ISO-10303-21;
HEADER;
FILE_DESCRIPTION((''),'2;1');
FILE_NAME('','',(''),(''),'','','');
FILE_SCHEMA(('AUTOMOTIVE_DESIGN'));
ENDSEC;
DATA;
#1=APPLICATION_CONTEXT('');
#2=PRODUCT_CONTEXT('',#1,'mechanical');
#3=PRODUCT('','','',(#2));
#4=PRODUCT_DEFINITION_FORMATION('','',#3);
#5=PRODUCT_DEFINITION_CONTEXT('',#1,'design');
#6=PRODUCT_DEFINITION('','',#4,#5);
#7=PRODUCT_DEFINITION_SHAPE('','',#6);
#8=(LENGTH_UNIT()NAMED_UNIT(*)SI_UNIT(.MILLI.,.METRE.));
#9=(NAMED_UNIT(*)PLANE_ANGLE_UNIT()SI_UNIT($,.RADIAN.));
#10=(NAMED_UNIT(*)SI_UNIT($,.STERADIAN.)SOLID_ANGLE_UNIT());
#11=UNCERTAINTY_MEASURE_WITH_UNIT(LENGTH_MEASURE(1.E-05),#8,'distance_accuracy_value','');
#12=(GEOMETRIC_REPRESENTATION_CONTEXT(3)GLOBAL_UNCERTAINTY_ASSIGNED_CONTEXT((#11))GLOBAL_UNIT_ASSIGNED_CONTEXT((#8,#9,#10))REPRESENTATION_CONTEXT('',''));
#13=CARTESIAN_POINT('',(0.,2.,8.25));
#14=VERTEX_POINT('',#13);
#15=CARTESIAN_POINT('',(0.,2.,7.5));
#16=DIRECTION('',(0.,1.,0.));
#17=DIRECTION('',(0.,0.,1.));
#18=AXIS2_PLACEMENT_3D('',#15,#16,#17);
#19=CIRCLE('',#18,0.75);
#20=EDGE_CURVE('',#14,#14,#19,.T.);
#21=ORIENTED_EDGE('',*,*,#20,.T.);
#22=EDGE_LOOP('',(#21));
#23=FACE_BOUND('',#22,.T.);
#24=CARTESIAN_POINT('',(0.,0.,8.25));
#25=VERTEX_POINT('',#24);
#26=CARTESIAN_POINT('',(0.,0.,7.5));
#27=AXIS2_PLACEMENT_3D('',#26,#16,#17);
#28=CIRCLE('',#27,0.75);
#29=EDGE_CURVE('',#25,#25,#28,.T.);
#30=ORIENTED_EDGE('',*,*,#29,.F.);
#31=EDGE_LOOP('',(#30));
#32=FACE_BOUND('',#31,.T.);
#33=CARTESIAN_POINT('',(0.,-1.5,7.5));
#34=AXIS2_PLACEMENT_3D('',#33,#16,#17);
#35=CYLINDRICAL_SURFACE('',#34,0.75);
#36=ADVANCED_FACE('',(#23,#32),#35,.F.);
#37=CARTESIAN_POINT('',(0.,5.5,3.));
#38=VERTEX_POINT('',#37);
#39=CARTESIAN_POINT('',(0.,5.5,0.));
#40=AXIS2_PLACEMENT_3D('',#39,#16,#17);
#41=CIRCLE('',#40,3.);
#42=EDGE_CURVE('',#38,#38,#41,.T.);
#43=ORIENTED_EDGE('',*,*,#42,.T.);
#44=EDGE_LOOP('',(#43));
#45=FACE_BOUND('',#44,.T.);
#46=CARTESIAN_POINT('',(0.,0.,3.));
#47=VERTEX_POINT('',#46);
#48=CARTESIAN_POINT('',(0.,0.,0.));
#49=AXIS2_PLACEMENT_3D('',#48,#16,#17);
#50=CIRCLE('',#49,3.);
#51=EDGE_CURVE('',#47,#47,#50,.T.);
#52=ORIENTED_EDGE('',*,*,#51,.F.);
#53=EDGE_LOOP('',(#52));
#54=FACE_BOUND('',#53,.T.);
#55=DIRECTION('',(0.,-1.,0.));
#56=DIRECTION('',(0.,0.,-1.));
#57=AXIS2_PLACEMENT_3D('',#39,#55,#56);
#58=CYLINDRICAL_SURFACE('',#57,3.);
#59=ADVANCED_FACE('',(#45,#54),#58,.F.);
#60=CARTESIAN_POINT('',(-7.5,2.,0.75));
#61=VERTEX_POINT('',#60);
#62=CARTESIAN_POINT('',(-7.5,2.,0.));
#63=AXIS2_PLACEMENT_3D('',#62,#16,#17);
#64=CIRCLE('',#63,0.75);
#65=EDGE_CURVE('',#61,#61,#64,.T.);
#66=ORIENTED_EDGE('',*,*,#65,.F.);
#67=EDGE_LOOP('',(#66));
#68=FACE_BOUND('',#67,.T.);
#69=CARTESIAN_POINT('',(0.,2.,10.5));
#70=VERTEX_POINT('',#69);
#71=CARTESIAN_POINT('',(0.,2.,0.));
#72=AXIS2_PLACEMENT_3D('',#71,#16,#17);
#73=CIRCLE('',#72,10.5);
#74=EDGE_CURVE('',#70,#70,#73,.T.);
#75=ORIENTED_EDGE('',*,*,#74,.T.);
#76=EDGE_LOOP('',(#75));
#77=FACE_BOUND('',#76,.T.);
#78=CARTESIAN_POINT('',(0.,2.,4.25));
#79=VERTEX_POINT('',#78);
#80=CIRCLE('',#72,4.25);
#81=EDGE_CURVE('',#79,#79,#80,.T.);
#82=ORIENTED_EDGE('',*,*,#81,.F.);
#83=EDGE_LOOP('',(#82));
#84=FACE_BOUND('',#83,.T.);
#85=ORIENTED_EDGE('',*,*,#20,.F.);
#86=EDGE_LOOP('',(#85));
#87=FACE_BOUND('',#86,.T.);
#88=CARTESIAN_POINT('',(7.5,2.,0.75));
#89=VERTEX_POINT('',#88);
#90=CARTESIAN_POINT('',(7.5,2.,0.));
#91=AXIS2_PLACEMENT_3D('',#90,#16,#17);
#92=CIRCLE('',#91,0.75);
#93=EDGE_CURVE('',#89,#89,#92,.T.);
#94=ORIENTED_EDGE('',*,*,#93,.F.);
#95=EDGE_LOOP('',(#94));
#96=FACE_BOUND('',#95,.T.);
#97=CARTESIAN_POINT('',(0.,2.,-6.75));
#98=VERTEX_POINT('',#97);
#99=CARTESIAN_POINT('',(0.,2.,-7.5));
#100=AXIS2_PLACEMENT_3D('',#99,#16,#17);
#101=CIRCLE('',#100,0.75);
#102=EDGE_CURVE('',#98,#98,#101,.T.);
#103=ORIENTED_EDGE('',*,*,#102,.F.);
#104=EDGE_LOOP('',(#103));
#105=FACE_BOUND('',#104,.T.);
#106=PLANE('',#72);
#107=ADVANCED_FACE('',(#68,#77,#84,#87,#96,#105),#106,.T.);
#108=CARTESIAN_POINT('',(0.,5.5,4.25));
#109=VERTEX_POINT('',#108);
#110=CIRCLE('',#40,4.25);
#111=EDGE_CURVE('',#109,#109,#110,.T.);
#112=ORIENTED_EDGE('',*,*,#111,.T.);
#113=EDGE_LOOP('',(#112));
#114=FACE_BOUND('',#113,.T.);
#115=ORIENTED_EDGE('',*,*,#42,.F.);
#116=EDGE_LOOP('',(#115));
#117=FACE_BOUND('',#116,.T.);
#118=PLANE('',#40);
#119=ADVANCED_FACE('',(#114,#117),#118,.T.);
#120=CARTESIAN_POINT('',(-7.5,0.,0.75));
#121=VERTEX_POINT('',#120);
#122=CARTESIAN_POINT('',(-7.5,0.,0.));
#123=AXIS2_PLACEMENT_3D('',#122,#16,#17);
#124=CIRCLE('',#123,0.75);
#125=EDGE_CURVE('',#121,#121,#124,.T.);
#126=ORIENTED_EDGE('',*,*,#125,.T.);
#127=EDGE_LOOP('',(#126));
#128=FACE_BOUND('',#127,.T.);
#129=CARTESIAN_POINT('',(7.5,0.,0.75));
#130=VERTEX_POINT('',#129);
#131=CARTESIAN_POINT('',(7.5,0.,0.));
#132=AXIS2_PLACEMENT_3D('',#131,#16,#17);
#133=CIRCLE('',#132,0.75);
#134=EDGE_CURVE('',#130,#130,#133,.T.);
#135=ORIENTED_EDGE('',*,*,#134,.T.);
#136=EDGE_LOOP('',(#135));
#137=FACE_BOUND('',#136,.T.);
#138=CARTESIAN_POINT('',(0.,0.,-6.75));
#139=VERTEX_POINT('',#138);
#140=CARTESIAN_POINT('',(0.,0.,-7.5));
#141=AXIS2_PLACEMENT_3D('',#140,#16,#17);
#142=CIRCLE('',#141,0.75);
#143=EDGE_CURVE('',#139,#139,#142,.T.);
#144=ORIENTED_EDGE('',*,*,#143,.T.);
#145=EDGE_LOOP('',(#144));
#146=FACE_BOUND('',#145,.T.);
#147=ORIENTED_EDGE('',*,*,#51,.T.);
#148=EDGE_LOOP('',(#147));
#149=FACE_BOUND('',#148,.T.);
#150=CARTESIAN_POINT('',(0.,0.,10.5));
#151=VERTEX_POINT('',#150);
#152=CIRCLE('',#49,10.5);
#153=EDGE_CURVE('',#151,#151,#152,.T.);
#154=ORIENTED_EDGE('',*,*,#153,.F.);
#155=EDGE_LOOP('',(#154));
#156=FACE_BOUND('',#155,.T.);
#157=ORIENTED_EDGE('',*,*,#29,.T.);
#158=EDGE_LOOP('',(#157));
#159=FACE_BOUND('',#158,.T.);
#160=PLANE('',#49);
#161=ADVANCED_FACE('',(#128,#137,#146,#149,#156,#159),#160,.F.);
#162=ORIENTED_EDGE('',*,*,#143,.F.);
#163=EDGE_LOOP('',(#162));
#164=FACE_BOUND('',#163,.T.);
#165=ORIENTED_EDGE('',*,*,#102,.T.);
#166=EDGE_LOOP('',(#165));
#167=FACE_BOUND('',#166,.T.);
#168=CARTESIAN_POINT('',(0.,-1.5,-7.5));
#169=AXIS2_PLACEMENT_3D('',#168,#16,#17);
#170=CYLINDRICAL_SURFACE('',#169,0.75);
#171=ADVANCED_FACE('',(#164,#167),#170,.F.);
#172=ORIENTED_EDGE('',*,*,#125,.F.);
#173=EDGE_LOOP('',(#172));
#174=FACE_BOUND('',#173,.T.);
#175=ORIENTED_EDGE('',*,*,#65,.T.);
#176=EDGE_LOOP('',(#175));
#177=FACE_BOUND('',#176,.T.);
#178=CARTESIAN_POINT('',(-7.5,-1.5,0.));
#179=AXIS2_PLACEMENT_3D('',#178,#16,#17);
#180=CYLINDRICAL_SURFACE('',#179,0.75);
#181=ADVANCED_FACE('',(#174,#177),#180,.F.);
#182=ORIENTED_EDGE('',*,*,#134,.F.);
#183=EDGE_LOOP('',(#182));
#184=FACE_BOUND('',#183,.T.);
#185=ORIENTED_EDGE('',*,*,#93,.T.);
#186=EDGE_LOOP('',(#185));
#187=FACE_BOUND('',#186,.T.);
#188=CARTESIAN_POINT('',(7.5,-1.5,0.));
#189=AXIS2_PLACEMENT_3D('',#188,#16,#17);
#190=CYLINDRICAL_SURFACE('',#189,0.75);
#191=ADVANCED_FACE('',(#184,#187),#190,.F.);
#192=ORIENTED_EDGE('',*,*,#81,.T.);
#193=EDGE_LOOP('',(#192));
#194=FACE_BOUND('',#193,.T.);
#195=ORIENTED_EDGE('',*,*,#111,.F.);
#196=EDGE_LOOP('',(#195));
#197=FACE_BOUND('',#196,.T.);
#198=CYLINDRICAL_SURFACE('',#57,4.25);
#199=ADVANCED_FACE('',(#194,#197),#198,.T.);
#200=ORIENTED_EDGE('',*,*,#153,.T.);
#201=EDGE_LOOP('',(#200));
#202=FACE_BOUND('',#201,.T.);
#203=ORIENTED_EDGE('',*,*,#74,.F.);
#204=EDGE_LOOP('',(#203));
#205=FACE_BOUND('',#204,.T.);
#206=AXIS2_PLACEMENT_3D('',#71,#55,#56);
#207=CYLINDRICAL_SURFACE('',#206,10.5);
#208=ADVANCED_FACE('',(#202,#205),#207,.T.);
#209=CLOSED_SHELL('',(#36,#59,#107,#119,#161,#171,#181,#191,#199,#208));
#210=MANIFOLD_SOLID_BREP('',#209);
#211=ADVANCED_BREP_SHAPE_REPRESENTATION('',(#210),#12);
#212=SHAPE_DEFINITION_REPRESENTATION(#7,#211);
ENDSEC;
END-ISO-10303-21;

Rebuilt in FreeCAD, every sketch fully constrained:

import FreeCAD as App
import Part
import Sketcher

doc = App.newDocument("Part")
body = doc.addObject("PartDesign::Body", "Body")

sketch1 = body.newObject("Sketcher::SketchObject", "Sketch")
sketch1.AttachmentSupport = (doc.getObject("XZ_Plane"), [""])
sketch1.MapMode = "FlatFace"
sketch1.addGeometry(Part.Circle(App.Vector(0, 0, 0), App.Vector(0, 0, 1), 10), False)
sketch1.addConstraint([
    Sketcher.Constraint("Coincident", 0, 3, -1, 1),
    Sketcher.Constraint("Diameter", 0, 21.0),
])
pad1 = body.newObject("PartDesign::Pad", "Pad")
pad1.Profile = sketch1
pad1.Length = 2
pad1.Reversed = True

sketch2 = body.newObject("Sketcher::SketchObject", "Sketch001")
sketch2.AttachmentSupport = (doc.getObject("XZ_Plane"), [""])
sketch2.MapMode = "FlatFace"
sketch2.AttachmentOffset = App.Placement(App.Vector(0, 0, -2), App.Rotation())
sketch2.addGeometry([
    Part.Circle(App.Vector(0, 0, 0), App.Vector(0, 0, 1), 4.2),
    Part.Circle(App.Vector(0, 0, 0), App.Vector(0, 0, 1), 3),
], False)
sketch2.addConstraint([
    Sketcher.Constraint("Coincident", 0, 3, -1, 1),
    Sketcher.Constraint("Coincident", 1, 3, -1, 1),
    Sketcher.Constraint("Diameter", 1, 6.0),
    Sketcher.Constraint("Diameter", 0, 8.5),
])
pad2 = body.newObject("PartDesign::Pad", "Pad001")
pad2.Profile = sketch2
pad2.Length = 3.5
pad2.Reversed = True

sketch3 = body.newObject("Sketcher::SketchObject", "Sketch002")
sketch3.AttachmentSupport = (doc.getObject("XZ_Plane"), [""])
sketch3.MapMode = "FlatFace"
sketch3.AttachmentOffset = App.Placement(App.Vector(0, 0, -2), App.Rotation())
sketch3.addGeometry([
    Part.Circle(App.Vector(0, -7.5, 0), App.Vector(0, 0, 1), 0.8),
    Part.Circle(App.Vector(0, 7.5, 0), App.Vector(0, 0, 1), 0.8),
    Part.Circle(App.Vector(7.5, 0, 0), App.Vector(0, 0, 1), 0.8),
    Part.Circle(App.Vector(-7.5, 0, 0), App.Vector(0, 0, 1), 0.8),
], False)
sketch3.addConstraint([
    Sketcher.Constraint("Equal", 0, 1),
    Sketcher.Constraint("Equal", 1, 2),
    Sketcher.Constraint("Equal", 2, 3),
    Sketcher.Constraint("Symmetric", 0, 3, 1, 3, -1, 1),
    Sketcher.Constraint("Symmetric", 2, 3, 3, 3, -1, 1),
    Sketcher.Constraint("PointOnObject", 0, 3, -2),
    Sketcher.Constraint("PointOnObject", 2, 3, -1),
    Sketcher.Constraint("Diameter", 0, 1.5),
    Sketcher.Constraint("DistanceY", 0, 3, 1, 3, 15.0),
    Sketcher.Constraint("DistanceX", 3, 3, 2, 3, 15.0),
])
pocket1 = body.newObject("PartDesign::Pocket", "Pocket")
pocket1.Profile = sketch3
pocket1.Length = 3.5
pocket1.Reversed = True

sketch4 = body.newObject("Sketcher::SketchObject", "Sketch003")
sketch4.AttachmentSupport = (doc.getObject("XZ_Plane"), [""])
sketch4.MapMode = "FlatFace"
sketch4.AttachmentOffset = App.Placement(App.Vector(0, 0, 1.5), App.Rotation())
sketch4.addGeometry(Part.Circle(App.Vector(0, 0, 0), App.Vector(0, 0, 1), 3), False)
sketch4.addConstraint([
    Sketcher.Constraint("Coincident", 0, 3, -1, 1),
    Sketcher.Constraint("Diameter", 0, 6.0),
])
pocket2 = body.newObject("PartDesign::Pocket", "Pocket001")
pocket2.Profile = sketch4
pocket2.Length = 3.5

doc.recompute()
